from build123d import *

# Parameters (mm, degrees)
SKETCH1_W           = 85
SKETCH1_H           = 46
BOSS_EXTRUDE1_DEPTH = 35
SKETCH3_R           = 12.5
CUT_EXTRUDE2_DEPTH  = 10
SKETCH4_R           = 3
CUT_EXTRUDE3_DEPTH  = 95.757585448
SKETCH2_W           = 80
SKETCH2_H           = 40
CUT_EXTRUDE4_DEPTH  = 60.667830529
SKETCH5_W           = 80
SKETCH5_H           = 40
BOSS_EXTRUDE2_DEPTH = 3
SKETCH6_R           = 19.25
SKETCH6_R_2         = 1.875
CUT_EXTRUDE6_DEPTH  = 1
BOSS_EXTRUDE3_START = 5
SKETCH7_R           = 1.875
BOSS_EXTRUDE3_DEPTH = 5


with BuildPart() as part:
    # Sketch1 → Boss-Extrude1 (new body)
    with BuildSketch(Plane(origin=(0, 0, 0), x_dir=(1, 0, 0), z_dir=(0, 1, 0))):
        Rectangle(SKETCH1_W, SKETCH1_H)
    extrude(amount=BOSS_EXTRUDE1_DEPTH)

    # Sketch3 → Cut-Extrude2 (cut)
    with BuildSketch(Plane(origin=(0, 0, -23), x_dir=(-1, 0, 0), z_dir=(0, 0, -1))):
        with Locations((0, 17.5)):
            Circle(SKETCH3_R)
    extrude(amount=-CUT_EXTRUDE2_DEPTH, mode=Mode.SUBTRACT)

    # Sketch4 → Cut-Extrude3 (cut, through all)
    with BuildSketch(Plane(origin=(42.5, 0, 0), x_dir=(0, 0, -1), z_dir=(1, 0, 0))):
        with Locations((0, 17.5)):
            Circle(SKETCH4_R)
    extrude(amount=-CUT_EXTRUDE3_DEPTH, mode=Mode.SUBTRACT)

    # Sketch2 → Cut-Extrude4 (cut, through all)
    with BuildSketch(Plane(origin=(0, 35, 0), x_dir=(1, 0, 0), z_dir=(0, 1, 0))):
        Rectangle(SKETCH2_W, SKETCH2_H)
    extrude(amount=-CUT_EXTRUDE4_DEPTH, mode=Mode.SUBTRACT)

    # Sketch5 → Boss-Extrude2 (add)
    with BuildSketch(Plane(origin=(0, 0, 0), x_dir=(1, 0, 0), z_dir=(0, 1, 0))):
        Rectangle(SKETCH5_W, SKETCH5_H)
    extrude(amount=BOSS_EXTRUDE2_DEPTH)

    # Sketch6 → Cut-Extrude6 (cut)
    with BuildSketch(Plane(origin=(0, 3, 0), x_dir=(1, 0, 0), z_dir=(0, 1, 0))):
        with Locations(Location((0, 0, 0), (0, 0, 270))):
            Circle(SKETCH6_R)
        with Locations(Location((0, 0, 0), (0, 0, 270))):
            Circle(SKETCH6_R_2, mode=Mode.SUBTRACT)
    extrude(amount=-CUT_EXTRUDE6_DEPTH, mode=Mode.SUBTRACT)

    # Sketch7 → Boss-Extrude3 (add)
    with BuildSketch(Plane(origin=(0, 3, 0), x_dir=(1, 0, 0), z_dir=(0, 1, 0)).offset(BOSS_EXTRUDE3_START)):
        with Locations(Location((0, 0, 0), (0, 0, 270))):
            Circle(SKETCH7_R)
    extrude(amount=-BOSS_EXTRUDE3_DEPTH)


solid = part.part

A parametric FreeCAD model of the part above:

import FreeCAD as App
import Part
import Sketcher

V = App.Vector

doc = App.newDocument("Part")
body = doc.addObject("PartDesign::Body", "Body")

sketch1 = doc.addObject("Sketcher::SketchObject", "Sketch")
body.addObject(sketch1)
sketch1.AttachmentSupport = (doc.XZ_Plane, [""])
sketch1.MapMode = "FlatFace"
sketch1.addGeometry(Part.LineSegment(V(-42, -23, 0), V(-42, 23, 0)), False)
sketch1.addGeometry(Part.LineSegment(V(-42, 23, 0), V(42, 23, 0)), False)
sketch1.addGeometry(Part.LineSegment(V(42, 23, 0), V(42, -23, 0)), False)
sketch1.addGeometry(Part.LineSegment(V(42, -23, 0), V(-42, -23, 0)), False)
sketch1.addConstraint(Sketcher.Constraint("Coincident", 0, 2, 1, 1))
sketch1.addConstraint(Sketcher.Constraint("Coincident", 1, 2, 2, 1))
sketch1.addConstraint(Sketcher.Constraint("Coincident", 2, 2, 3, 1))
sketch1.addConstraint(Sketcher.Constraint("Coincident", 3, 2, 0, 1))
sketch1.addConstraint(Sketcher.Constraint("Vertical", 0))
sketch1.addConstraint(Sketcher.Constraint("Horizontal", 1))
sketch1.addConstraint(Sketcher.Constraint("Vertical", 2))
sketch1.addConstraint(Sketcher.Constraint("Horizontal", 3))
sketch1.addConstraint(Sketcher.Constraint("Symmetric", 0, 2, 2, 2, -1, 1))
sketch1.addConstraint(Sketcher.Constraint("DistanceX", 1, 1, 1, 2, 85.0))
sketch1.addConstraint(Sketcher.Constraint("DistanceY", 0, 1, 0, 2, 46.0))
pad1 = doc.addObject("PartDesign::Pad", "Pad")
body.addObject(pad1)
pad1.Profile = sketch1
pad1.Length = 35
pad1.Reversed = True

sketch2 = doc.addObject("Sketcher::SketchObject", "Sketch001")
body.addObject(sketch2)
sketch2.AttachmentSupport = (doc.XY_Plane, [""])
sketch2.MapMode = "FlatFace"
sketch2.AttachmentOffset = App.Placement(V(0, 0, -23), App.Rotation())
sketch2.addGeometry(Part.Circle(V(0, 18, 0), V(0, 0, 1), 12), False)
sketch2.addConstraint(Sketcher.Constraint("PointOnObject", 0, 3, -2))
sketch2.addConstraint(Sketcher.Constraint("Diameter", 0, 25.0))
sketch2.addConstraint(Sketcher.Constraint("DistanceY", -1, 1, 0, 3, 17.5))
pocket1 = doc.addObject("PartDesign::Pocket", "Pocket")
body.addObject(pocket1)
pocket1.Profile = sketch2
pocket1.Length = 10
pocket1.Reversed = True

sketch3 = doc.addObject("Sketcher::SketchObject", "Sketch002")
body.addObject(sketch3)
sketch3.AttachmentSupport = (doc.YZ_Plane, [""])
sketch3.MapMode = "FlatFace"
sketch3.AttachmentOffset = App.Placement(V(0, 0, 42.5), App.Rotation())
sketch3.addGeometry(Part.Circle(V(17.5, 0, 0), V(0, 0, 1), 3), False)
sketch3.addConstraint(Sketcher.Constraint("PointOnObject", 0, 3, -1))
sketch3.addConstraint(Sketcher.Constraint("Diameter", 0, 6.0))
sketch3.addConstraint(Sketcher.Constraint("DistanceX", -1, 1, 0, 3, 17.5))
pocket2 = doc.addObject("PartDesign::Pocket", "Pocket001")
body.addObject(pocket2)
pocket2.Profile = sketch3
pocket2.Type = "ThroughAll"

sketch4 = doc.addObject("Sketcher::SketchObject", "Sketch003")
body.addObject(sketch4)
sketch4.AttachmentSupport = (doc.XZ_Plane, [""])
sketch4.MapMode = "FlatFace"
sketch4.AttachmentOffset = App.Placement(V(0, 0, -35), App.Rotation())
sketch4.addGeometry(Part.LineSegment(V(-40, -20, 0), V(-40, 20, 0)), False)
sketch4.addGeometry(Part.LineSegment(V(-40, 20, 0), V(40, 20, 0)), False)
sketch4.addGeometry(Part.LineSegment(V(40, 20, 0), V(40, -20, 0)), False)
sketch4.addGeometry(Part.LineSegment(V(40, -20, 0), V(-40, -20, 0)), False)
sketch4.addConstraint(Sketcher.Constraint("Coincident", 0, 2, 1, 1))
sketch4.addConstraint(Sketcher.Constraint("Coincident", 1, 2, 2, 1))
sketch4.addConstraint(Sketcher.Constraint("Coincident", 2, 2, 3, 1))
sketch4.addConstraint(Sketcher.Constraint("Coincident", 3, 2, 0, 1))
sketch4.addConstraint(Sketcher.Constraint("Vertical", 0))
sketch4.addConstraint(Sketcher.Constraint("Horizontal", 1))
sketch4.addConstraint(Sketcher.Constraint("Vertical", 2))
sketch4.addConstraint(Sketcher.Constraint("Horizontal", 3))
sketch4.addConstraint(Sketcher.Constraint("Symmetric", 0, 2, 2, 2, -1, 1))
sketch4.addConstraint(Sketcher.Constraint("DistanceX", 1, 1, 1, 2, 80.0))
sketch4.addConstraint(Sketcher.Constraint("DistanceY", 0, 1, 0, 2, 40.0))
pocket3 = doc.addObject("PartDesign::Pocket", "Pocket002")
body.addObject(pocket3)
pocket3.Profile = sketch4
pocket3.Type = "ThroughAll"
pocket3.Reversed = True

sketch5 = doc.addObject("Sketcher::SketchObject", "Sketch004")
body.addObject(sketch5)
sketch5.AttachmentSupport = (doc.XZ_Plane, [""])
sketch5.MapMode = "FlatFace"
sketch5.addGeometry(Part.LineSegment(V(-40, -20, 0), V(-40, 20, 0)), False)
sketch5.addGeometry(Part.LineSegment(V(-40, 20, 0), V(40, 20, 0)), False)
sketch5.addGeometry(Part.LineSegment(V(40, 20, 0), V(40, -20, 0)), False)
sketch5.addGeometry(Part.LineSegment(V(40, -20, 0), V(-40, -20, 0)), False)
sketch5.addConstraint(Sketcher.Constraint("Coincident", 0, 2, 1, 1))
sketch5.addConstraint(Sketcher.Constraint("Coincident", 1, 2, 2, 1))
sketch5.addConstraint(Sketcher.Constraint("Coincident", 2, 2, 3, 1))
sketch5.addConstraint(Sketcher.Constraint("Coincident", 3, 2, 0, 1))
sketch5.addConstraint(Sketcher.Constraint("Vertical", 0))
sketch5.addConstraint(Sketcher.Constraint("Horizontal", 1))
sketch5.addConstraint(Sketcher.Constraint("Vertical", 2))
sketch5.addConstraint(Sketcher.Constraint("Horizontal", 3))
sketch5.addConstraint(Sketcher.Constraint("Symmetric", 0, 2, 2, 2, -1, 1))
sketch5.addConstraint(Sketcher.Constraint("DistanceX", 1, 1, 1, 2, 80.0))
sketch5.addConstraint(Sketcher.Constraint("DistanceY", 0, 1, 0, 2, 40.0))
pad2 = doc.addObject("PartDesign::Pad", "Pad001")
body.addObject(pad2)
pad2.Profile = sketch5
pad2.Length = 3
pad2.Reversed = True

sketch6 = doc.addObject("Sketcher::SketchObject", "Sketch005")
body.addObject(sketch6)
sketch6.AttachmentSupport = (doc.XZ_Plane, [""])
sketch6.MapMode = "FlatFace"
sketch6.AttachmentOffset = App.Placement(V(0, 0, -3), App.Rotation())
sketch6.addGeometry(Part.Circle(V(0, 0, 0), V(0, 0, 1), 19.2), False)
sketch6.addGeometry(Part.Circle(V(0, 0, 0), V(0, 0, 1), 1.9), False)
sketch6.addConstraint(Sketcher.Constraint("Coincident", 0, 3, -1, 1))
sketch6.addConstraint(Sketcher.Constraint("Coincident", 1, 3, -1, 1))
sketch6.addConstraint(Sketcher.Constraint("Diameter", 0, 38.5))
sketch6.addConstraint(Sketcher.Constraint("Diameter", 1, 3.75))
pocket4 = doc.addObject("PartDesign::Pocket", "Pocket003")
body.addObject(pocket4)
pocket4.Profile = sketch6
pocket4.Length = 1
pocket4.Reversed = True

sketch7 = doc.addObject("Sketcher::SketchObject", "Sketch006")
body.addObject(sketch7)
sketch7.AttachmentSupport = (doc.XZ_Plane, [""])
sketch7.MapMode = "FlatFace"
sketch7.AttachmentOffset = App.Placement(V(0, 0, -8), App.Rotation())
sketch7.addGeometry(Part.Circle(V(0, 0, 0), V(0, 0, 1), 1.9), False)
sketch7.addConstraint(Sketcher.Constraint("Coincident", 0, 3, -1, 1))
sketch7.addConstraint(Sketcher.Constraint("Diameter", 0, 3.75))
pad3 = doc.addObject("PartDesign::Pad", "Pad002")
body.addObject(pad3)
pad3.Profile = sketch7
pad3.Length = 5

doc.recompute()
